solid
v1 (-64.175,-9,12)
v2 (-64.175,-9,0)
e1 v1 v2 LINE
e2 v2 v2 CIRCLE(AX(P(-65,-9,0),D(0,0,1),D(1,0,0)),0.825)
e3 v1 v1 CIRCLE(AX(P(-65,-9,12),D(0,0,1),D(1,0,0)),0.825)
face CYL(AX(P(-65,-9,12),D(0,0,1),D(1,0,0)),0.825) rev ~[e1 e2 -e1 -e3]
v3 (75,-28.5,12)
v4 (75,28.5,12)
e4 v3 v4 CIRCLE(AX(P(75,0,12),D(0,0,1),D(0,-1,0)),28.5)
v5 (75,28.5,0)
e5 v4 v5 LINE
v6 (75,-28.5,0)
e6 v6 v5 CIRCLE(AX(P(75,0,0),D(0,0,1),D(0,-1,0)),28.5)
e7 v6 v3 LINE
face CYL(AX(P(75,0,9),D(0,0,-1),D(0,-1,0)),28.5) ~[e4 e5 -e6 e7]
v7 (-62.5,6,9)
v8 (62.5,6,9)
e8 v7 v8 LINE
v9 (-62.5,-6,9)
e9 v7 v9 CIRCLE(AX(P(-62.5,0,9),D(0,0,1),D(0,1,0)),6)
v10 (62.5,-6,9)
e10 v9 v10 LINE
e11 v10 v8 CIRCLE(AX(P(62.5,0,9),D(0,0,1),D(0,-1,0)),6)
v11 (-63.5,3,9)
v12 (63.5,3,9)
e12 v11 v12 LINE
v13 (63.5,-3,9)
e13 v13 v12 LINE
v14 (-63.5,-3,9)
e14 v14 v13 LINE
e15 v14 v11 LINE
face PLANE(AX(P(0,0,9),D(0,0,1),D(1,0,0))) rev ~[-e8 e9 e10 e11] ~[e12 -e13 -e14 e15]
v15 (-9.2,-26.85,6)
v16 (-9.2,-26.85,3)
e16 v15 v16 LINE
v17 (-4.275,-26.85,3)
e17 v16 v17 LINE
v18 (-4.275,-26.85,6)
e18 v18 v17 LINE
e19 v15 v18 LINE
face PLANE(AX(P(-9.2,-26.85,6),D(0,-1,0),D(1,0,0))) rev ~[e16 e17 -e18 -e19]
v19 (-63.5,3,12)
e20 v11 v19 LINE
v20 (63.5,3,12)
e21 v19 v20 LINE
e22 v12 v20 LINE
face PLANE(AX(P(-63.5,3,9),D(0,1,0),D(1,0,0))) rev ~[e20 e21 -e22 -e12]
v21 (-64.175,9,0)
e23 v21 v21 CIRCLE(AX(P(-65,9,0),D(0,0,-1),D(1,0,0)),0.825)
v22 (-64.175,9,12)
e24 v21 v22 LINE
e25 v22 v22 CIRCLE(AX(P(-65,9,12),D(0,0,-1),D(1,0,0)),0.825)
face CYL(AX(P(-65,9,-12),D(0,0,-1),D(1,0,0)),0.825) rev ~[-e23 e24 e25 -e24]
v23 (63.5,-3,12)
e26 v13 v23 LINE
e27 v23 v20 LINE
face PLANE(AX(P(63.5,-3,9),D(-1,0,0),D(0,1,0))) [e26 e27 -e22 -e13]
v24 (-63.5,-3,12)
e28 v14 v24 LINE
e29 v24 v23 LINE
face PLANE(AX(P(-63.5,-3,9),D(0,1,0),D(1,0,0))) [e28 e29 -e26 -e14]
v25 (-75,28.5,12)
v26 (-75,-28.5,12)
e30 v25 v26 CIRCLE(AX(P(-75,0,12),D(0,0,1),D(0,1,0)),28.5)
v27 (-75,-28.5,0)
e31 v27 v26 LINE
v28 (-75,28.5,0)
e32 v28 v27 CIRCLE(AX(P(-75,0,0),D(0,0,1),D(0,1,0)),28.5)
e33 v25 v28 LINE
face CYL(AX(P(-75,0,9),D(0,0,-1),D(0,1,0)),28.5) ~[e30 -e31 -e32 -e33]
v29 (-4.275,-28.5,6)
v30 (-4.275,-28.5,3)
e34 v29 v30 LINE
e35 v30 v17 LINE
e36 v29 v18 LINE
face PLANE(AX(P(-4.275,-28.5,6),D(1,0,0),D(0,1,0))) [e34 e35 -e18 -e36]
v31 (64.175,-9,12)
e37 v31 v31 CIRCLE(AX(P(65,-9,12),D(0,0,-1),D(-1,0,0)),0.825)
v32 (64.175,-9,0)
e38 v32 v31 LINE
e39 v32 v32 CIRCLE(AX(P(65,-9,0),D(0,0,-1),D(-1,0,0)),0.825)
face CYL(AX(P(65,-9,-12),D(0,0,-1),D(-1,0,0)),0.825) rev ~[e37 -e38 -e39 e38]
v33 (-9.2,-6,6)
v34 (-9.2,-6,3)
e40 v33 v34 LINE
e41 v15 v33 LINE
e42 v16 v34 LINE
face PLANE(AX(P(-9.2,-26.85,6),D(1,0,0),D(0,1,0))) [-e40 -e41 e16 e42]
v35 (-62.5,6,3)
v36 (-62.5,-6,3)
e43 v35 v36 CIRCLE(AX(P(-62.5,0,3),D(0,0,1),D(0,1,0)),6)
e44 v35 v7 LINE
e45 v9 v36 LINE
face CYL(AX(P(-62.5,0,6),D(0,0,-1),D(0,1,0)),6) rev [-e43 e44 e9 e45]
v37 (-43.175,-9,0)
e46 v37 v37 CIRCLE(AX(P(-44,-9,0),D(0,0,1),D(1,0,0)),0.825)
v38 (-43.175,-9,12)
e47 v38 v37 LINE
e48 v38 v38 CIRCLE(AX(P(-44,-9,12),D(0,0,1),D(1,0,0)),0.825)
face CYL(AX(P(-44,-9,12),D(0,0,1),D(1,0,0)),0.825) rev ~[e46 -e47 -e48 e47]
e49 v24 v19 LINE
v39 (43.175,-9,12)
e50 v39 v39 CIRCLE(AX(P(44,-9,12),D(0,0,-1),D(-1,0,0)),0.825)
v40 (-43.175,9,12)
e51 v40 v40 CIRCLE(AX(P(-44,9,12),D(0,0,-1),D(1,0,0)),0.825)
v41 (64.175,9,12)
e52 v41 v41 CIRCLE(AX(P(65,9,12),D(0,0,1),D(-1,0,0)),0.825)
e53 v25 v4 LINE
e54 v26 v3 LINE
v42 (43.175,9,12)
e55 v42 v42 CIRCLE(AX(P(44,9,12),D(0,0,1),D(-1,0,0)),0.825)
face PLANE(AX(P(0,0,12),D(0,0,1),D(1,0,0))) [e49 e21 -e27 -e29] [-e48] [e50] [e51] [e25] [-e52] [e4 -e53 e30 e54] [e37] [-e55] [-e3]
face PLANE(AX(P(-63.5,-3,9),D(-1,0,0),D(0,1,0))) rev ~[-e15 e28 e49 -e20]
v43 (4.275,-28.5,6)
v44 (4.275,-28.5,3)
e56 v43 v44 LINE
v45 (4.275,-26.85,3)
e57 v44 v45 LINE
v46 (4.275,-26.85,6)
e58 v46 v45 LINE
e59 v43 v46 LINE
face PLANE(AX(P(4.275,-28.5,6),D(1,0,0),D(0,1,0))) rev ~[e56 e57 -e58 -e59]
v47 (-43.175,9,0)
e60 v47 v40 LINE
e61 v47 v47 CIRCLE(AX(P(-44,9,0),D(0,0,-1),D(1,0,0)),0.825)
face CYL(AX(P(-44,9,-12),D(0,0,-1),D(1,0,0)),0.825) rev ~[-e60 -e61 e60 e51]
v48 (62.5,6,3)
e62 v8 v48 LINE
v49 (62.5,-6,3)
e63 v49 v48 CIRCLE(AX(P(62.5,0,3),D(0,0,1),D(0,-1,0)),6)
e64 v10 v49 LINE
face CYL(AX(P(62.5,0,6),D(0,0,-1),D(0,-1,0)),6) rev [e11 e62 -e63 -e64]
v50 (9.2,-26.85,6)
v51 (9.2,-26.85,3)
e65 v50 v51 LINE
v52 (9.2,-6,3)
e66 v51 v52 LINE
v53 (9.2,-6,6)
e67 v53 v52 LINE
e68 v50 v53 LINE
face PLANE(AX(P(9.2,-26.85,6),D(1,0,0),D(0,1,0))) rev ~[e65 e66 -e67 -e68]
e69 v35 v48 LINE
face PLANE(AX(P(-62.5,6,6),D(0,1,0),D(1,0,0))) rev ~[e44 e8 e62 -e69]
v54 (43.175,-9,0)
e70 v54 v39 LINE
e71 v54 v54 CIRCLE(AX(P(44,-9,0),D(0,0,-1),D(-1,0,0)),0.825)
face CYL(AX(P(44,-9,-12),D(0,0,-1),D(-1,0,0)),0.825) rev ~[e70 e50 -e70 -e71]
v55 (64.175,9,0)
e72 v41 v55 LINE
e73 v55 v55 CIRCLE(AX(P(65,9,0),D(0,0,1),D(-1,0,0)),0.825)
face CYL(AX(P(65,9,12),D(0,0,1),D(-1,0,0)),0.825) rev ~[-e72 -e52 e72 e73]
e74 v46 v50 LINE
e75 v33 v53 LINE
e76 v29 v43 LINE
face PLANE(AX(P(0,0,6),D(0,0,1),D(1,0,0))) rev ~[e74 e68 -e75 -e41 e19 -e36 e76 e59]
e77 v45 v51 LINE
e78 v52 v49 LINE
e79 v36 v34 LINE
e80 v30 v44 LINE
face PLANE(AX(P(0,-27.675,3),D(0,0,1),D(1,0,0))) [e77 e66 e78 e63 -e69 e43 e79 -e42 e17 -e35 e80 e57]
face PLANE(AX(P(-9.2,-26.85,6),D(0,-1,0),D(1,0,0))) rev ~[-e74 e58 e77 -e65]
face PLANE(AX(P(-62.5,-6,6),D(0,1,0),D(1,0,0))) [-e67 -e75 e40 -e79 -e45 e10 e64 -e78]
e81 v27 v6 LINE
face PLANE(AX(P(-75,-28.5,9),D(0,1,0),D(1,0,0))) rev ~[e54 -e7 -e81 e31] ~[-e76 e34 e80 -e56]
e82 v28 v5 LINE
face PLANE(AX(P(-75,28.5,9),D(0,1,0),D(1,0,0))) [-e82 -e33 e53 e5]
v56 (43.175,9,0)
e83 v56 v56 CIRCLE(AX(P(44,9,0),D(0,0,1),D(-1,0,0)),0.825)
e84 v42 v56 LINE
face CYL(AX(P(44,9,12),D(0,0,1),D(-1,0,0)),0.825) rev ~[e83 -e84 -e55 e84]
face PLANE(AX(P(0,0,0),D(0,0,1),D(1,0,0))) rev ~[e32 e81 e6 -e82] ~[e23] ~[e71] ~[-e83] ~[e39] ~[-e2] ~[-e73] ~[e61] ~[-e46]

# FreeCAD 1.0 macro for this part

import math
import FreeCAD as App
import Part
import Sketcher
from FreeCAD import Vector

doc = App.newDocument("Part")
body = doc.addObject("PartDesign::Body", "Body")

# Sketch on XY plane
sketch1 = body.newObject("Sketcher::SketchObject", "Sketch")
sketch1.AttachmentSupport = (doc.getObject("XY_Plane"), [""])
sketch1.MapMode = "FlatFace"
sketch1.addGeometry(Part.ArcOfCircle(Part.Circle(Vector(-75, 0, 0), Vector(0, 0, 1), 28), math.radians(90), math.radians(270)), False)
sketch1.addGeometry(Part.LineSegment(Vector(-75, -28, 0), Vector(75, -28, 0)), False)
sketch1.addGeometry(Part.ArcOfCircle(Part.Circle(Vector(75, 0, 0), Vector(0, 0, 1), 28), math.radians(-90), math.radians(90)), False)
sketch1.addGeometry(Part.LineSegment(Vector(75, 28, 0), Vector(-75, 28, 0)), False)
sketch1.addConstraint(Sketcher.Constraint("Tangent", 0, 2, 1, 1))
sketch1.addConstraint(Sketcher.Constraint("Tangent", 1, 2, 2, 1))
sketch1.addConstraint(Sketcher.Constraint("Tangent", 2, 2, 3, 1))
sketch1.addConstraint(Sketcher.Constraint("Tangent", 3, 2, 0, 1))
sketch1.addConstraint(Sketcher.Constraint("Horizontal", 1))
sketch1.addConstraint(Sketcher.Constraint("Horizontal", 3))
sketch1.addConstraint(Sketcher.Constraint("Symmetric", 0, 3, 2, 3, -1, 1))
sketch1.addConstraint(Sketcher.Constraint("Radius", 0, 28.5))
sketch1.addConstraint(Sketcher.Constraint("DistanceX", 1, 1, 1, 2, 150.0))
pad1 = body.newObject("PartDesign::Pad", "Pad")
pad1.Profile = sketch1
pad1.Length = 6

# Sketch on XY plane
sketch2 = body.newObject("Sketcher::SketchObject", "Sketch001")
sketch2.AttachmentSupport = (doc.getObject("XY_Plane"), [""])
sketch2.MapMode = "FlatFace"
sketch2.AttachmentOffset = App.Placement(Vector(0, 0, 6), App.Rotation())
sketch2.addGeometry(Part.ArcOfCircle(Part.Circle(Vector(-62, 0, 0), Vector(0, 0, 1), 6), math.radians(90), math.radians(270)), False)
sketch2.addGeometry(Part.LineSegment(Vector(-62, -6, 0), Vector(62, -6, 0)), False)
sketch2.addGeometry(Part.ArcOfCircle(Part.Circle(Vector(62, 0, 0), Vector(0, 0, 1), 6), math.radians(-90), math.radians(90)), False)
sketch2.addGeometry(Part.LineSegment(Vector(62, 6, 0), Vector(-62, 6, 0)), False)
sketch2.addConstraint(Sketcher.Constraint("Tangent", 0, 2, 1, 1))
sketch2.addConstraint(Sketcher.Constraint("Tangent", 1, 2, 2, 1))
sketch2.addConstraint(Sketcher.Constraint("Tangent", 2, 2, 3, 1))
sketch2.addConstraint(Sketcher.Constraint("Tangent", 3, 2, 0, 1))
sketch2.addConstraint(Sketcher.Constraint("Horizontal", 1))
sketch2.addConstraint(Sketcher.Constraint("Horizontal", 3))
sketch2.addConstraint(Sketcher.Constraint("Symmetric", 0, 3, 2, 3, -1, 1))
sketch2.addConstraint(Sketcher.Constraint("Radius", 0, 6.0))
sketch2.addConstraint(Sketcher.Constraint("DistanceX", 1, 1, 1, 2, 125.0))
pocket1 = body.newObject("PartDesign::Pocket", "Pocket")
pocket1.Profile = sketch2
pocket1.Length = 3

# Sketch on XY plane
sketch3 = body.newObject("Sketcher::SketchObject", "Sketch002")
sketch3.AttachmentSupport = (doc.getObject("XY_Plane"), [""])
sketch3.MapMode = "FlatFace"
sketch3.AttachmentOffset = App.Placement(Vector(0, 0, 6), App.Rotation())
sketch3.addGeometry(Part.LineSegment(Vector(-9, -6, 0), Vector(-9, -27, 0)), False)
sketch3.addGeometry(Part.LineSegment(Vector(-9, -27, 0), Vector(9, -27, 0)), False)
sketch3.addGeometry(Part.LineSegment(Vector(9, -27, 0), Vector(9, -6, 0)), False)
sketch3.addGeometry(Part.LineSegment(Vector(9, -6, 0), Vector(-9, -6, 0)), False)
sketch3.addConstraint(Sketcher.Constraint("Coincident", 0, 2, 1, 1))
sketch3.addConstraint(Sketcher.Constraint("Coincident", 1, 2, 2, 1))
sketch3.addConstraint(Sketcher.Constraint("Coincident", 2, 2, 3, 1))
sketch3.addConstraint(Sketcher.Constraint("Coincident", 3, 2, 0, 1))
sketch3.addConstraint(Sketcher.Constraint("Vertical", 0))
sketch3.addConstraint(Sketcher.Constraint("Horizontal", 1))
sketch3.addConstraint(Sketcher.Constraint("Vertical", 2))
sketch3.addConstraint(Sketcher.Constraint("Horizontal", 3))
sketch3.addConstraint(Sketcher.Constraint("DistanceX", 1, 1, 1, 2, 18.4))
sketch3.addConstraint(Sketcher.Constraint("DistanceY", 2, 2, -1, 1, 6.0))
sketch3.addConstraint(Sketcher.Constraint("DistanceY", 0, 2, 0, 1, 20.85))
sketch3.addConstraint(Sketcher.Constraint("DistanceX", 0, 2, -1, 1, 9.2))
pocket2 = body.newObject("PartDesign::Pocket", "Pocket001")
pocket2.Profile = sketch3
pocket2.Length = 3

# Sketch on XY plane
sketch4 = body.newObject("Sketcher::SketchObject", "Sketch003")
sketch4.AttachmentSupport = (doc.getObject("XY_Plane"), [""])
sketch4.MapMode = "FlatFace"
sketch4.AttachmentOffset = App.Placement(Vector(0, 0, 6), App.Rotation())
sketch4.addGeometry(Part.LineSegment(Vector(-4.3, -26.9, 0), Vector(-4.3, -28.5, 0)), False)
sketch4.addGeometry(Part.LineSegment(Vector(-4.3, -28.5, 0), Vector(4.3, -28.5, 0)), False)
sketch4.addGeometry(Part.LineSegment(Vector(4.3, -28.5, 0), Vector(4.3, -26.9, 0)), False)
sketch4.addGeometry(Part.LineSegment(Vector(4.3, -26.9, 0), Vector(-4.3, -26.9, 0)), False)
sketch4.addConstraint(Sketcher.Constraint("Coincident", 0, 2, 1, 1))
sketch4.addConstraint(Sketcher.Constraint("Coincident", 1, 2, 2, 1))
sketch4.addConstraint(Sketcher.Constraint("Coincident", 2, 2, 3, 1))
sketch4.addConstraint(Sketcher.Constraint("Coincident", 3, 2, 0, 1))
sketch4.addConstraint(Sketcher.Constraint("Vertical", 0))
sketch4.addConstraint(Sketcher.Constraint("Horizontal", 1))
sketch4.addConstraint(Sketcher.Constraint("Vertical", 2))
sketch4.addConstraint(Sketcher.Constraint("Horizontal", 3))
sketch4.addConstraint(Sketcher.Constraint("DistanceX", 1, 1, 1, 2, 8.55))
sketch4.addConstraint(Sketcher.Constraint("DistanceY", 0, 2, 0, 1, 1.65))
sketch4.addConstraint(Sketcher.Constraint("DistanceY", 0, 2, -1, 1, 28.5))
sketch4.addConstraint(Sketcher.Constraint("DistanceX", 0, 2, -1, 1, 4.275))
pocket3 = body.newObject("PartDesign::Pocket", "Pocket002")
pocket3.Profile = sketch4
pocket3.Length = 3

# Sketch on XY plane
sketch5 = body.newObject("Sketcher::SketchObject", "Sketch004")
sketch5.AttachmentSupport = (doc.getObject("XY_Plane"), [""])
sketch5.MapMode = "FlatFace"
sketch5.AttachmentOffset = App.Placement(Vector(0, 0, 6), App.Rotation())
sketch5.addGeometry(Part.ArcOfCircle(Part.Circle(Vector(-75, 0, 0), Vector(0, 0, 1), 28), math.radians(90), math.radians(270)), False)
sketch5.addGeometry(Part.LineSegment(Vector(-75, -28, 0), Vector(75, -28, 0)), False)
sketch5.addGeometry(Part.ArcOfCircle(Part.Circle(Vector(75, 0, 0), Vector(0, 0, 1), 28), math.radians(-90), math.radians(90)), False)
sketch5.addGeometry(Part.LineSegment(Vector(75, 28, 0), Vector(-75, 28, 0)), False)
sketch5.addGeometry(Part.ArcOfCircle(Part.Circle(Vector(-62, 0, 0), Vector(0, 0, 1), 6), math.radians(90), math.radians(270)), False)
sketch5.addGeometry(Part.LineSegment(Vector(-62, 6, 0), Vector(62, 6, 0)), False)
sketch5.addGeometry(Part.ArcOfCircle(Part.Circle(Vector(62, 0, 0), Vector(0, 0, 1), 6), math.radians(-90), math.radians(90)), False)
sketch5.addGeometry(Part.LineSegment(Vector(62, -6, 0), Vector(-62, -6, 0)), False)
sketch5.addConstraint(Sketcher.Constraint("Tangent", 0, 2, 1, 1))
sketch5.addConstraint(Sketcher.Constraint("Tangent", 1, 2, 2, 1))
sketch5.addConstraint(Sketcher.Constraint("Tangent", 2, 2, 3, 1))
sketch5.addConstraint(Sketcher.Constraint("Tangent", 3, 2, 0, 1))
sketch5.addConstraint(Sketcher.Constraint("Tangent", 4, 1, 5, 1))
sketch5.addConstraint(Sketcher.Constraint("Tangent", 5, 2, 6, 2))
sketch5.addConstraint(Sketcher.Constraint("Tangent", 6, 1, 7, 1))
sketch5.addConstraint(Sketcher.Constraint("Tangent", 7, 2, 4, 2))
sketch5.addConstraint(Sketcher.Constraint("Horizontal", 1))
sketch5.addConstraint(Sketcher.Constraint("Horizontal", 3))
sketch5.addConstraint(Sketcher.Constraint("Horizontal", 5))
sketch5.addConstraint(Sketcher.Constraint("Horizontal", 7))
sketch5.addConstraint(Sketcher.Constraint("Symmetric", 0, 3, 2, 3, -1, 1))
sketch5.addConstraint(Sketcher.Constraint("Symmetric", 4, 3, 6, 3, -1, 1))
sketch5.addConstraint(Sketcher.Constraint("Radius", 4, 6.0))
sketch5.addConstraint(Sketcher.Constraint("Radius", 0, 28.5))
sketch5.addConstraint(Sketcher.Constraint("DistanceX", 1, 1, 1, 2, 150.0))
sketch5.addConstraint(Sketcher.Constraint("DistanceX", 5, 1, 5, 2, 125.0))
pad2 = body.newObject("PartDesign::Pad", "Pad001")
pad2.Profile = sketch5
pad2.Length = 3

# Sketch on XY plane
sketch6 = body.newObject("Sketcher::SketchObject", "Sketch005")
sketch6.AttachmentSupport = (doc.getObject("XY_Plane"), [""])
sketch6.MapMode = "FlatFace"
sketch6.AttachmentOffset = App.Placement(Vector(0, 0, 9), App.Rotation())
sketch6.addGeometry(Part.ArcOfCircle(Part.Circle(Vector(-75, 0, 0), Vector(0, 0, 1), 28), math.radians(90), math.radians(270)), False)
sketch6.addGeometry(Part.LineSegment(Vector(-75, -28, 0), Vector(75, -28, 0)), False)
sketch6.addGeometry(Part.ArcOfCircle(Part.Circle(Vector(75, 0, 0), Vector(0, 0, 1), 28), math.radians(-90), math.radians(90)), False)
sketch6.addGeometry(Part.LineSegment(Vector(75, 28, 0), Vector(-75, 28, 0)), False)
sketch6.addGeometry(Part.LineSegment(Vector(64, -3, 0), Vector(-64, -3, 0)), False)
sketch6.addGeometry(Part.LineSegment(Vector(-64, -3, 0), Vector(-64, 3, 0)), False)
sketch6.addGeometry(Part.LineSegment(Vector(-64, 3, 0), Vector(64, 3, 0)), False)
sketch6.addGeometry(Part.LineSegment(Vector(64, 3, 0), Vector(64, -3, 0)), False)
sketch6.addConstraint(Sketcher.Constraint("Tangent", 0, 2, 1, 1))
sketch6.addConstraint(Sketcher.Constraint("Tangent", 1, 2, 2, 1))
sketch6.addConstraint(Sketcher.Constraint("Tangent", 2, 2, 3, 1))
sketch6.addConstraint(Sketcher.Constraint("Tangent", 3, 2, 0, 1))
sketch6.addConstraint(Sketcher.Constraint("Coincident", 4, 2, 5, 1))
sketch6.addConstraint(Sketcher.Constraint("Coincident", 5, 2, 6, 1))
sketch6.addConstraint(Sketcher.Constraint("Coincident", 6, 2, 7, 1))
sketch6.addConstraint(Sketcher.Constraint("Coincident", 7, 2, 4, 1))
sketch6.addConstraint(Sketcher.Constraint("Horizontal", 1))
sketch6.addConstraint(Sketcher.Constraint("Horizontal", 3))
sketch6.addConstraint(Sketcher.Constraint("Horizontal", 4))
sketch6.addConstraint(Sketcher.Constraint("Vertical", 5))
sketch6.addConstraint(Sketcher.Constraint("Horizontal", 6))
sketch6.addConstraint(Sketcher.Constraint("Vertical", 7))
sketch6.addConstraint(Sketcher.Constraint("Symmetric", 0, 3, 2, 3, -1, 1))
sketch6.addConstraint(Sketcher.Constraint("Symmetric", 4, 2, 6, 2, -1, 1))
sketch6.addConstraint(Sketcher.Constraint("Radius", 0, 28.5))
sketch6.addConstraint(Sketcher.Constraint("DistanceX", 1, 1, 1, 2, 150.0))
sketch6.addConstraint(Sketcher.Constraint("DistanceX", 4, 2, 4, 1, 127.0))
sketch6.addConstraint(Sketcher.Constraint("DistanceY", 5, 1, 5, 2, 6.0))
pad3 = body.newObject("PartDesign::Pad", "Pad002")
pad3.Profile = sketch6
pad3.Length = 3

# Sketch on XY plane
sketch7 = body.newObject("Sketcher::SketchObject", "Sketch006")
sketch7.AttachmentSupport = (doc.getObject("XY_Plane"), [""])
sketch7.MapMode = "FlatFace"
sketch7.AttachmentOffset = App.Placement(Vector(0, 0, 12), App.Rotation())
sketch7.addGeometry(Part.Circle(Vector(-65, -9, 0), Vector(0, 0, 1), 0.8), False)
sketch7.addGeometry(Part.Circle(Vector(-44, -9, 0), Vector(0, 0, 1), 0.8), False)
sketch7.addConstraint(Sketcher.Constraint("Equal", 0, 1))
sketch7.addConstraint(Sketcher.Constraint("Horizontal", 0, 3, 1, 3))
sketch7.addConstraint(Sketcher.Constraint("Diameter", 0, 1.65))
sketch7.addConstraint(Sketcher.Constraint("DistanceX", 0, 3, -1, 1, 65.0))
sketch7.addConstraint(Sketcher.Constraint("DistanceY", 0, 3, -1, 1, 9.0))
sketch7.addConstraint(Sketcher.Constraint("DistanceX", 1, 3, -1, 1, 44.0))
pocket4 = body.newObject("PartDesign::Pocket", "Pocket003")
pocket4.Profile = sketch7
pocket4.Type = "ThroughAll"
doc.recompute()

polarpattern = body.newObject("PartDesign::PolarPattern", "PolarPattern")
polarpattern.Originals = [pocket4]
polarpattern.Axis = (doc.getObject("Z_Axis"), [""])
polarpattern.Angle = 360
polarpattern.Occurrences = 2
body.Tip = polarpattern
doc.recompute()

polarpattern2 = body.newObject("PartDesign::PolarPattern", "PolarPattern001")
polarpattern2.Originals = [pocket4]
polarpattern2.Axis = (doc.getObject("Y_Axis"), [""])
polarpattern2.Angle = 360
polarpattern2.Occurrences = 2
body.Tip = polarpattern2
doc.recompute()

polarpattern3 = body.newObject("PartDesign::PolarPattern", "PolarPattern002")
polarpattern3.Originals = [pocket4]
polarpattern3.Axis = (doc.getObject("X_Axis"), [""])
polarpattern3.Angle = 360
polarpattern3.Occurrences = 2
body.Tip = polarpattern3

doc.recompute()
